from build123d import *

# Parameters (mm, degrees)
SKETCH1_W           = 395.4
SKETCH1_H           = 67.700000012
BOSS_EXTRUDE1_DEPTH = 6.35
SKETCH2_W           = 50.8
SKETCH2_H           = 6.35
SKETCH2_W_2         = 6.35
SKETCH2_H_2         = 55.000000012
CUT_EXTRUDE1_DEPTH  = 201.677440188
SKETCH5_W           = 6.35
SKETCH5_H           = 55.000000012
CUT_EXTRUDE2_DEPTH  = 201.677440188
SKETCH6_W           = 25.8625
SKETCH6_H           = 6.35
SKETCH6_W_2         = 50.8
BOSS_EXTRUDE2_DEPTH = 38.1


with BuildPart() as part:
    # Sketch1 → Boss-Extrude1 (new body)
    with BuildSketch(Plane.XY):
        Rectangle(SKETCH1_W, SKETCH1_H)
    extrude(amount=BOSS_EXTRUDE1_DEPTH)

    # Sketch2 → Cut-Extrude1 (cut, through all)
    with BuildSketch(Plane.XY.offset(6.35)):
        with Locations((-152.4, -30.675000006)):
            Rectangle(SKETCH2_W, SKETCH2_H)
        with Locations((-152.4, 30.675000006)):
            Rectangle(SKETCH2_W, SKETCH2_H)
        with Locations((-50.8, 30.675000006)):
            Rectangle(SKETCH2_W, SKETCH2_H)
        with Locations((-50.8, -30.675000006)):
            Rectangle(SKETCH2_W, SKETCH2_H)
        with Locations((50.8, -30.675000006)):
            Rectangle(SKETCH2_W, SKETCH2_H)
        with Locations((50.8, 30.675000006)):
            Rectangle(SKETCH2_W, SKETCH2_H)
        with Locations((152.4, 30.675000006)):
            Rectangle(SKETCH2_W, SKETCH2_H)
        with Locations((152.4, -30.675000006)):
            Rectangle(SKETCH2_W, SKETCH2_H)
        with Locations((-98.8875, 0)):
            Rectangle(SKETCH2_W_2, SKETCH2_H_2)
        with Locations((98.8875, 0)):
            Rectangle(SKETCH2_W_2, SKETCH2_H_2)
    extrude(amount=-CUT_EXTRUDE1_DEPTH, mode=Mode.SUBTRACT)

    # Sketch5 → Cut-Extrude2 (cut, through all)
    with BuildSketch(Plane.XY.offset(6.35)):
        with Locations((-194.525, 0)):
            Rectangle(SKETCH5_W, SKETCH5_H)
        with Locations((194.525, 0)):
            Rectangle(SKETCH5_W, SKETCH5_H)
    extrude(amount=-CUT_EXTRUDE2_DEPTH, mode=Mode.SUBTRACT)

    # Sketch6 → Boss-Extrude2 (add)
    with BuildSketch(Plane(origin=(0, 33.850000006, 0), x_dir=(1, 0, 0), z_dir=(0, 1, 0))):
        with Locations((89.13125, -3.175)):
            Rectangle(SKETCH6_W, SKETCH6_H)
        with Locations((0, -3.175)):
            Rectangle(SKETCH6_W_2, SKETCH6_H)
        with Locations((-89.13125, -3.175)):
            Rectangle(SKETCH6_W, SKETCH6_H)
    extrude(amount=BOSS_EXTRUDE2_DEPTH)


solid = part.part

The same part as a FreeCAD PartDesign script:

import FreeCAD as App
import Part
import Sketcher
from FreeCAD import Vector
Q = App.Units.Quantity


def add_polygon(sketch, points):
    """Adds a closed chain of lines whose ends are joined by coincident constraints."""
    first, n = sketch.GeometryCount, len(points)
    for a, b in zip(points, points[1:] + points[:1]):
        sketch.addGeometry(Part.LineSegment(App.Vector(*a, 0), App.Vector(*b, 0)), False)
    for i in range(n):
        sketch.addConstraint(Sketcher.Constraint("Coincident", first + i, 2, first + (i + 1) % n, 1))

doc = App.newDocument("Part")
body = doc.addObject("PartDesign::Body", "Body")

# Sketch on XY plane
sketch1 = doc.addObject("Sketcher::SketchObject", "Sketch")
body.addObject(sketch1)
sketch1.AttachmentSupport = (doc.XY_Plane, [""])
sketch1.MapMode = "FlatFace"
add_polygon(sketch1, [(-198, 34), (-198, -34), (198, -34), (198, 34)])  # lines 0-3
sketch1.addConstraint([
    Sketcher.Constraint("Vertical", 0),
    Sketcher.Constraint("Horizontal", 1),
    Sketcher.Constraint("Vertical", 2),
    Sketcher.Constraint("Horizontal", 3),
    Sketcher.Constraint("Symmetric", 0, 2, 2, 2, -1, 1),
    Sketcher.Constraint("DistanceX", 1, 1, 1, 2, Q("395.4 mm")),
    Sketcher.Constraint("DistanceY", 0, 2, 0, 1, Q("67.7 mm")),
])
pad1 = doc.addObject("PartDesign::Pad", "Pad")
body.addObject(pad1)
pad1.Profile = sketch1
pad1.Length = 6.35

# Sketch on XY plane
sketch2 = doc.addObject("Sketcher::SketchObject", "Sketch001")
body.addObject(sketch2)
sketch2.AttachmentSupport = (doc.XY_Plane, [""])
sketch2.MapMode = "FlatFace"
sketch2.AttachmentOffset = App.Placement(Vector(0, 0, 6.35), App.Rotation())
add_polygon(sketch2, [(-178, -28), (-178, -34), (-127, -34), (-127, -28)])  # lines 0-3
add_polygon(sketch2, [(-178, 34), (-178, 28), (-127, 28), (-127, 34)])  # lines 4-7
add_polygon(sketch2, [(-76, 34), (-76, 28), (-25, 28), (-25, 34)])  # lines 8-11
add_polygon(sketch2, [(-76, -28), (-76, -34), (-25, -34), (-25, -28)])  # lines 12-15
add_polygon(sketch2, [(25, -28), (25, -34), (76, -34), (76, -28)])  # lines 16-19
add_polygon(sketch2, [(25, 34), (25, 28), (76, 28), (76, 34)])  # lines 20-23
add_polygon(sketch2, [(127, 34), (127, 28), (178, 28), (178, 34)])  # lines 24-27
add_polygon(sketch2, [(127, -28), (127, -34), (178, -34), (178, -28)])  # lines 28-31
add_polygon(sketch2, [(-102, 28), (-102, -28), (-96, -28), (-96, 28)])  # lines 32-35
add_polygon(sketch2, [(96, 28), (96, -28), (102, -28), (102, 28)])  # lines 36-39
sketch2.addConstraint([
    Sketcher.Constraint("Vertical", 0),
    Sketcher.Constraint("Horizontal", 1),
    Sketcher.Constraint("Vertical", 2),
    Sketcher.Constraint("Horizontal", 3),
    Sketcher.Constraint("Vertical", 4),
    Sketcher.Constraint("Horizontal", 5),
    Sketcher.Constraint("Vertical", 6),
    Sketcher.Constraint("Horizontal", 7),
    Sketcher.Constraint("Vertical", 8),
    Sketcher.Constraint("Horizontal", 9),
    Sketcher.Constraint("Vertical", 10),
    Sketcher.Constraint("Horizontal", 11),
    Sketcher.Constraint("Vertical", 12),
    Sketcher.Constraint("Horizontal", 13),
    Sketcher.Constraint("Vertical", 14),
    Sketcher.Constraint("Horizontal", 15),
    Sketcher.Constraint("Vertical", 16),
    Sketcher.Constraint("Horizontal", 17),
    Sketcher.Constraint("Vertical", 18),
    Sketcher.Constraint("Horizontal", 19),
    Sketcher.Constraint("Vertical", 20),
    Sketcher.Constraint("Horizontal", 21),
    Sketcher.Constraint("Vertical", 22),
    Sketcher.Constraint("Horizontal", 23),
    Sketcher.Constraint("Vertical", 24),
    Sketcher.Constraint("Horizontal", 25),
    Sketcher.Constraint("Vertical", 26),
    Sketcher.Constraint("Horizontal", 27),
    Sketcher.Constraint("Vertical", 28),
    Sketcher.Constraint("Horizontal", 29),
    Sketcher.Constraint("Vertical", 30),
    Sketcher.Constraint("Horizontal", 31),
    Sketcher.Constraint("Vertical", 32),
    Sketcher.Constraint("Horizontal", 33),
    Sketcher.Constraint("Vertical", 34),
    Sketcher.Constraint("Horizontal", 35),
    Sketcher.Constraint("Vertical", 36),
    Sketcher.Constraint("Horizontal", 37),
    Sketcher.Constraint("Vertical", 38),
    Sketcher.Constraint("Horizontal", 39),
    Sketcher.Constraint("Symmetric", 10, 2, 16, 2, -1, 1),
    Sketcher.Constraint("Symmetric", 8, 2, 18, 2, -1, 1),
    Sketcher.Constraint("Symmetric", 14, 2, 20, 2, -1, 1),
    Sketcher.Constraint("Symmetric", 12, 2, 22, 2, -1, 1),
    Sketcher.Constraint("Symmetric", 2, 2, 24, 2, -1, 1),
    Sketcher.Constraint("Symmetric", 0, 2, 26, 2, -1, 1),
    Sketcher.Constraint("Symmetric", 6, 2, 28, 2, -1, 1),
    Sketcher.Constraint("Symmetric", 4, 2, 30, 2, -1, 1),
    Sketcher.Constraint("Symmetric", 34, 2, 36, 2, -1, 1),
    Sketcher.Constraint("Symmetric", 32, 2, 38, 2, -1, 1),
    Sketcher.Constraint("Symmetric", 13, 2, 16, 2, -2),
    Sketcher.Constraint("Symmetric", 15, 2, 18, 2, -2),
    Sketcher.Constraint("Symmetric", 5, 2, 24, 2, -2),
    Sketcher.Constraint("Symmetric", 7, 2, 26, 2, -2),
    Sketcher.Constraint("Horizontal", 5, 2, 8, 2),
    Sketcher.Constraint("Horizontal", 7, 2, 10, 2),
    Sketcher.Constraint("Horizontal", 31, 2, 32, 2),
    Sketcher.Constraint("Horizontal", 25, 2, 34, 2),
    Sketcher.Constraint("Equal", 7, 9),
    Sketcher.Constraint("Equal", 39, 0),
    Sketcher.Constraint("DistanceY", 32, 2, 32, 1, Q("55 mm")),
    Sketcher.Constraint("DistanceX", 1, 1, 1, 2, Q("50.8 mm")),
    Sketcher.Constraint("DistanceX", 1, 2, -1, 1, Q("127 mm")),
    Sketcher.Constraint("DistanceX", 33, 1, 33, 2, Q("6.35 mm")),
    Sketcher.Constraint("DistanceX", 8, 2, -1, 1, Q("76.2 mm")),
    Sketcher.Constraint("DistanceX", 32, 2, -1, 1, Q("102.0625 mm")),
])
pocket1 = doc.addObject("PartDesign::Pocket", "Pocket")
body.addObject(pocket1)
pocket1.Profile = sketch2
pocket1.Type = "ThroughAll"

# Sketch on XY plane
sketch3 = doc.addObject("Sketcher::SketchObject", "Sketch002")
body.addObject(sketch3)
sketch3.AttachmentSupport = (doc.XY_Plane, [""])
sketch3.MapMode = "FlatFace"
sketch3.AttachmentOffset = App.Placement(Vector(0, 0, 6.35), App.Rotation())
add_polygon(sketch3, [(-198, 28), (-198, -28), (-191, -28), (-191, 28)])  # lines 0-3
add_polygon(sketch3, [(191, 28), (191, -28), (198, -28), (198, 28)])  # lines 4-7
sketch3.addConstraint([
    Sketcher.Constraint("Vertical", 0),
    Sketcher.Constraint("Horizontal", 1),
    Sketcher.Constraint("Vertical", 2),
    Sketcher.Constraint("Horizontal", 3),
    Sketcher.Constraint("Vertical", 4),
    Sketcher.Constraint("Horizontal", 5),
    Sketcher.Constraint("Vertical", 6),
    Sketcher.Constraint("Horizontal", 7),
    Sketcher.Constraint("Symmetric", 2, 2, 4, 2, -1, 1),
    Sketcher.Constraint("Symmetric", 0, 2, 6, 2, -1, 1),
    Sketcher.Constraint("Horizontal", 1, 2, 4, 2),
    Sketcher.Constraint("DistanceY", 0, 2, 0, 1, Q("55 mm")),
    Sketcher.Constraint("DistanceX", 1, 1, 1, 2, Q("6.35 mm")),
    Sketcher.Constraint("DistanceX", 0, 2, -1, 1, Q("197.7 mm")),
])
pocket2 = doc.addObject("PartDesign::Pocket", "Pocket001")
body.addObject(pocket2)
pocket2.Profile = sketch3
pocket2.Type = "ThroughAll"

# Sketch on XZ plane
sketch4 = doc.addObject("Sketcher::SketchObject", "Sketch003")
body.addObject(sketch4)
sketch4.AttachmentSupport = (doc.XZ_Plane, [""])
sketch4.MapMode = "FlatFace"
sketch4.AttachmentOffset = App.Placement(Vector(0, 0, -33.85), App.Rotation())
add_polygon(sketch4, [(76, 0), (76, 6), (102, 6), (102, 0)])  # lines 0-3
add_polygon(sketch4, [(-25, 0), (-25, 6), (25, 6), (25, 0)])  # lines 4-7
add_polygon(sketch4, [(-102, 0), (-102, 6), (-76, 6), (-76, 0)])  # lines 8-11
sketch4.addConstraint([
    Sketcher.Constraint("Vertical", 0),
    Sketcher.Constraint("Horizontal", 1),
    Sketcher.Constraint("Vertical", 2),
    Sketcher.Constraint("Horizontal", 3),
    Sketcher.Constraint("Vertical", 4),
    Sketcher.Constraint("Horizontal", 5),
    Sketcher.Constraint("Vertical", 6),
    Sketcher.Constraint("Horizontal", 7),
    Sketcher.Constraint("Vertical", 8),
    Sketcher.Constraint("Horizontal", 9),
    Sketcher.Constraint("Vertical", 10),
    Sketcher.Constraint("Horizontal", 11),
    Sketcher.Constraint("Symmetric", 6, 2, 7, 2, -1, 1),
    Sketcher.Constraint("Symmetric", 3, 2, 10, 2, -1, 1),
    Sketcher.Constraint("Symmetric", 1, 2, 8, 2, -2),
    Sketcher.Constraint("PointOnObject", 2, 2, -1),
    Sketcher.Constraint("Horizontal", 1, 2, 4, 2),
    Sketcher.Constraint("DistanceX", 5, 1, 5, 2, Q("50.8 mm")),
    Sketcher.Constraint("DistanceY", 0, 1, 0, 2, Q("6.35 mm")),
    Sketcher.Constraint("DistanceX", -1, 1, 0, 2, Q("76.2 mm")),
    Sketcher.Constraint("DistanceX", 1, 1, 1, 2, Q("25.8625 mm")),
])
pad2 = doc.addObject("PartDesign::Pad", "Pad001")
body.addObject(pad2)
pad2.Profile = sketch4
pad2.Length = 38.1
pad2.Reversed = True

doc.recompute()
